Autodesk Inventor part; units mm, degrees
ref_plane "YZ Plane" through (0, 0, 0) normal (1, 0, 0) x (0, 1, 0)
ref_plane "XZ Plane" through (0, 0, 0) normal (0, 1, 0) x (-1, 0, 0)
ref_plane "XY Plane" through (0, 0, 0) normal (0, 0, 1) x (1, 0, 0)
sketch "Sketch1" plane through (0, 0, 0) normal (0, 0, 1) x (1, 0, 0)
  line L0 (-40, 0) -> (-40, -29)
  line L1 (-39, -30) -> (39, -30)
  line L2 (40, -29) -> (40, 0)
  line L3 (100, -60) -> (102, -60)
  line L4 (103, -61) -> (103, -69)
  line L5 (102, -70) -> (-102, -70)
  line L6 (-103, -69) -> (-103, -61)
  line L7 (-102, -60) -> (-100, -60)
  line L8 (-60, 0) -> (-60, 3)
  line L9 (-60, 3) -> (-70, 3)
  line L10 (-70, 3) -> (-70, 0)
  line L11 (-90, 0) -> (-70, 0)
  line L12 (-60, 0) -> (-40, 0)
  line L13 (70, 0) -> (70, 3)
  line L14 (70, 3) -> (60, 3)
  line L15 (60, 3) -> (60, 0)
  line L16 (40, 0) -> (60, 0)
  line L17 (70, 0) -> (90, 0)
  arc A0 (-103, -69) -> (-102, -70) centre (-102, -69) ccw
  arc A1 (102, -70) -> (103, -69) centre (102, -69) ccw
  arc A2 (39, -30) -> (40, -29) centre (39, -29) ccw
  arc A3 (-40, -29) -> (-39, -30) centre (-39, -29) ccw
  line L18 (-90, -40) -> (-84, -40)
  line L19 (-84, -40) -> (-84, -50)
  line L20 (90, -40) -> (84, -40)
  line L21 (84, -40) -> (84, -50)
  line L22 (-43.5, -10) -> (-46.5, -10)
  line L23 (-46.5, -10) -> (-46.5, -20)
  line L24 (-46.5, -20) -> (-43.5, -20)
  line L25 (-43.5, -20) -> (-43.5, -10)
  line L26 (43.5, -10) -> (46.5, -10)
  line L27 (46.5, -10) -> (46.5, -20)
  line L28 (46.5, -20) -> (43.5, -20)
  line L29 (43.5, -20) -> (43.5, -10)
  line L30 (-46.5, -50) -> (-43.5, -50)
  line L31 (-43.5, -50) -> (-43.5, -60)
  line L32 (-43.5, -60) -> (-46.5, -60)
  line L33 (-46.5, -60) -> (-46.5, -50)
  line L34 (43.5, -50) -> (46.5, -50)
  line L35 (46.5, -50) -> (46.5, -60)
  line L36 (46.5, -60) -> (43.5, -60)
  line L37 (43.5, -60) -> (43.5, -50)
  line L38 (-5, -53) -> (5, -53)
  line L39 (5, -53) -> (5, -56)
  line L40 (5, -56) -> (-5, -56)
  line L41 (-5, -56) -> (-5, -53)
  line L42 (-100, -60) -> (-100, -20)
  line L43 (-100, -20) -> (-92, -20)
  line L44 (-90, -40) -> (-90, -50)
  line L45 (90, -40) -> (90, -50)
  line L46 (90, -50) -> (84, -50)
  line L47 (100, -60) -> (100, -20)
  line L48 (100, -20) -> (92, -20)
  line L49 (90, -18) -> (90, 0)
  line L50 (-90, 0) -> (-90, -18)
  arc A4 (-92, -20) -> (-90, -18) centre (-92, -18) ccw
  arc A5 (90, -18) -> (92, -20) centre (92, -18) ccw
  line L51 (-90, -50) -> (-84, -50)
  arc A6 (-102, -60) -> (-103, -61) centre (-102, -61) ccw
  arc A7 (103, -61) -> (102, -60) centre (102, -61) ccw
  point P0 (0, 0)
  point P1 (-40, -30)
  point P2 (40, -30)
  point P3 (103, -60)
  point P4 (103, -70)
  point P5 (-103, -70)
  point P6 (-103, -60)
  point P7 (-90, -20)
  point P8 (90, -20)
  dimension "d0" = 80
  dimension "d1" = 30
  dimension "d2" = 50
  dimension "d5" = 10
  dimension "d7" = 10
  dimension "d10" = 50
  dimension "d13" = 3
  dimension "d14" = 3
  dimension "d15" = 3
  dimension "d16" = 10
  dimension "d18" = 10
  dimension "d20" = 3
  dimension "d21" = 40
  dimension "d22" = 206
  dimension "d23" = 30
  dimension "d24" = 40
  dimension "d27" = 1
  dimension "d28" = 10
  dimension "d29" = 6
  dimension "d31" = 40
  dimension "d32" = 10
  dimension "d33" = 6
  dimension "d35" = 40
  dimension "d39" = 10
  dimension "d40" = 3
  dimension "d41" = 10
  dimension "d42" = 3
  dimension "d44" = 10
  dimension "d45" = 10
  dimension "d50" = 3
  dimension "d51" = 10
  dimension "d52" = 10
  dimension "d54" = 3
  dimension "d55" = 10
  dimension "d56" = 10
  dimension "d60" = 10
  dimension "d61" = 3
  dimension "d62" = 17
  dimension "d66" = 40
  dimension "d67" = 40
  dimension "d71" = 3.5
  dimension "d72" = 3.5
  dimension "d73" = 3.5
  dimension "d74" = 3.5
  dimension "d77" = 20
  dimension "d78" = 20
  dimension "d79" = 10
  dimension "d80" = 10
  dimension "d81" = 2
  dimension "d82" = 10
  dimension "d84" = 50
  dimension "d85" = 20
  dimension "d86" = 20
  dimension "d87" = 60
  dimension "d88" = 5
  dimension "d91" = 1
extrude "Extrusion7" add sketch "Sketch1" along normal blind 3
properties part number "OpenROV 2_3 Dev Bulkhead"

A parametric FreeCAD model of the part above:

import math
import FreeCAD as App
import Part
import Sketcher
from FreeCAD import Vector

doc = App.newDocument("Part")
body = doc.addObject("PartDesign::Body", "Body")

# Sketch on XY plane
sketch1 = body.newObject("Sketcher::SketchObject", "Sketch")
sketch1.AttachmentSupport = (doc.getObject("XY_Plane"), [""])
sketch1.MapMode = "FlatFace"
sketch1.addGeometry(Part.LineSegment(Vector(-40, -29, 0), Vector(-40, 0, 0)), False)
sketch1.addGeometry(Part.LineSegment(Vector(-40, 0, 0), Vector(-60, 0, 0)), False)
sketch1.addGeometry(Part.LineSegment(Vector(-60, 0, 0), Vector(-60, 3, 0)), False)
sketch1.addGeometry(Part.LineSegment(Vector(-60, 3, 0), Vector(-70, 3, 0)), False)
sketch1.addGeometry(Part.LineSegment(Vector(-70, 3, 0), Vector(-70, 0, 0)), False)
sketch1.addGeometry(Part.LineSegment(Vector(-70, 0, 0), Vector(-90, 0, 0)), False)
sketch1.addGeometry(Part.LineSegment(Vector(-90, 0, 0), Vector(-90, -18, 0)), False)
sketch1.addGeometry(Part.ArcOfCircle(Part.Circle(Vector(-92, -18, 0), Vector(0, 0, 1), 2), math.radians(-90), math.radians(0)), False)
sketch1.addGeometry(Part.LineSegment(Vector(-92, -20, 0), Vector(-100, -20, 0)), False)
sketch1.addGeometry(Part.LineSegment(Vector(-100, -20, 0), Vector(-100, -60, 0)), False)
sketch1.addGeometry(Part.LineSegment(Vector(-100, -60, 0), Vector(-102, -60, 0)), False)
sketch1.addGeometry(Part.ArcOfCircle(Part.Circle(Vector(-102, -61, 0), Vector(0, 0, 1), 1), math.radians(90), math.radians(180)), False)
sketch1.addGeometry(Part.LineSegment(Vector(-103, -61, 0), Vector(-103, -69, 0)), False)
sketch1.addGeometry(Part.ArcOfCircle(Part.Circle(Vector(-102, -69, 0), Vector(0, 0, 1), 1), math.radians(180), math.radians(270)), False)
sketch1.addGeometry(Part.LineSegment(Vector(-102, -70, 0), Vector(102, -70, 0)), False)
sketch1.addGeometry(Part.ArcOfCircle(Part.Circle(Vector(102, -69, 0), Vector(0, 0, 1), 1), math.radians(-90), math.radians(0)), False)
sketch1.addGeometry(Part.LineSegment(Vector(103, -69, 0), Vector(103, -61, 0)), False)
sketch1.addGeometry(Part.ArcOfCircle(Part.Circle(Vector(102, -61, 0), Vector(0, 0, 1), 1), math.radians(0), math.radians(90)), False)
sketch1.addGeometry(Part.LineSegment(Vector(102, -60, 0), Vector(100, -60, 0)), False)
sketch1.addGeometry(Part.LineSegment(Vector(100, -60, 0), Vector(100, -20, 0)), False)
sketch1.addGeometry(Part.LineSegment(Vector(100, -20, 0), Vector(92, -20, 0)), False)
sketch1.addGeometry(Part.ArcOfCircle(Part.Circle(Vector(92, -18, 0), Vector(0, 0, 1), 2), math.radians(180), math.radians(270)), False)
sketch1.addGeometry(Part.LineSegment(Vector(90, -18, 0), Vector(90, 0, 0)), False)
sketch1.addGeometry(Part.LineSegment(Vector(90, 0, 0), Vector(70, 0, 0)), False)
sketch1.addGeometry(Part.LineSegment(Vector(70, 0, 0), Vector(70, 3, 0)), False)
sketch1.addGeometry(Part.LineSegment(Vector(70, 3, 0), Vector(60, 3, 0)), False)
sketch1.addGeometry(Part.LineSegment(Vector(60, 3, 0), Vector(60, 0, 0)), False)
sketch1.addGeometry(Part.LineSegment(Vector(60, 0, 0), Vector(40, 0, 0)), False)
sketch1.addGeometry(Part.LineSegment(Vector(40, 0, 0), Vector(40, -29, 0)), False)
sketch1.addGeometry(Part.ArcOfCircle(Part.Circle(Vector(39, -29, 0), Vector(0, 0, 1), 1), math.radians(-90), math.radians(0)), False)
sketch1.addGeometry(Part.LineSegment(Vector(39, -30, 0), Vector(-39, -30, 0)), False)
sketch1.addGeometry(Part.ArcOfCircle(Part.Circle(Vector(-39, -29, 0), Vector(0, 0, 1), 1), math.radians(180), math.radians(270)), False)
sketch1.addGeometry(Part.LineSegment(Vector(-46.5, -60, 0), Vector(-46.5, -50, 0)), False)
sketch1.addGeometry(Part.LineSegment(Vector(-46.5, -50, 0), Vector(-43.5, -50, 0)), False)
sketch1.addGeometry(Part.LineSegment(Vector(-43.5, -50, 0), Vector(-43.5, -60, 0)), False)
sketch1.addGeometry(Part.LineSegment(Vector(-43.5, -60, 0), Vector(-46.5, -60, 0)), False)
sketch1.addGeometry(Part.LineSegment(Vector(-5, -56, 0), Vector(-5, -53, 0)), False)
sketch1.addGeometry(Part.LineSegment(Vector(-5, -53, 0), Vector(5, -53, 0)), False)
sketch1.addGeometry(Part.LineSegment(Vector(5, -53, 0), Vector(5, -56, 0)), False)
sketch1.addGeometry(Part.LineSegment(Vector(5, -56, 0), Vector(-5, -56, 0)), False)
sketch1.addGeometry(Part.LineSegment(Vector(-90, -50, 0), Vector(-90, -40, 0)), False)
sketch1.addGeometry(Part.LineSegment(Vector(-90, -40, 0), Vector(-84, -40, 0)), False)
sketch1.addGeometry(Part.LineSegment(Vector(-84, -40, 0), Vector(-84, -50, 0)), False)
sketch1.addGeometry(Part.LineSegment(Vector(-84, -50, 0), Vector(-90, -50, 0)), False)
sketch1.addGeometry(Part.LineSegment(Vector(43.5, -60, 0), Vector(43.5, -50, 0)), False)
sketch1.addGeometry(Part.LineSegment(Vector(43.5, -50, 0), Vector(46.5, -50, 0)), False)
sketch1.addGeometry(Part.LineSegment(Vector(46.5, -50, 0), Vector(46.5, -60, 0)), False)
sketch1.addGeometry(Part.LineSegment(Vector(46.5, -60, 0), Vector(43.5, -60, 0)), False)
sketch1.addGeometry(Part.LineSegment(Vector(84, -40, 0), Vector(90, -40, 0)), False)
sketch1.addGeometry(Part.LineSegment(Vector(90, -40, 0), Vector(90, -50, 0)), False)
sketch1.addGeometry(Part.LineSegment(Vector(90, -50, 0), Vector(84, -50, 0)), False)
sketch1.addGeometry(Part.LineSegment(Vector(84, -50, 0), Vector(84, -40, 0)), False)
sketch1.addGeometry(Part.LineSegment(Vector(-46.5, -10, 0), Vector(-43.5, -10, 0)), False)
sketch1.addGeometry(Part.LineSegment(Vector(-43.5, -10, 0), Vector(-43.5, -20, 0)), False)
sketch1.addGeometry(Part.LineSegment(Vector(-43.5, -20, 0), Vector(-46.5, -20, 0)), False)
sketch1.addGeometry(Part.LineSegment(Vector(-46.5, -20, 0), Vector(-46.5, -10, 0)), False)
sketch1.addGeometry(Part.LineSegment(Vector(43.5, -20, 0), Vector(43.5, -10, 0)), False)
sketch1.addGeometry(Part.LineSegment(Vector(43.5, -10, 0), Vector(46.5, -10, 0)), False)
sketch1.addGeometry(Part.LineSegment(Vector(46.5, -10, 0), Vector(46.5, -20, 0)), False)
sketch1.addGeometry(Part.LineSegment(Vector(46.5, -20, 0), Vector(43.5, -20, 0)), False)
sketch1.addConstraint(Sketcher.Constraint("Coincident", 0, 2, 1, 1))
sketch1.addConstraint(Sketcher.Constraint("Coincident", 1, 2, 2, 1))
sketch1.addConstraint(Sketcher.Constraint("Coincident", 2, 2, 3, 1))
sketch1.addConstraint(Sketcher.Constraint("Coincident", 3, 2, 4, 1))
sketch1.addConstraint(Sketcher.Constraint("Coincident", 4, 2, 5, 1))
sketch1.addConstraint(Sketcher.Constraint("Coincident", 5, 2, 6, 1))
sketch1.addConstraint(Sketcher.Constraint("Tangent", 6, 2, 7, 2))
sketch1.addConstraint(Sketcher.Constraint("Tangent", 7, 1, 8, 1))
sketch1.addConstraint(Sketcher.Constraint("Coincident", 8, 2, 9, 1))
sketch1.addConstraint(Sketcher.Constraint("Coincident", 9, 2, 10, 1))
sketch1.addConstraint(Sketcher.Constraint("Tangent", 10, 2, 11, 1))
sketch1.addConstraint(Sketcher.Constraint("Tangent", 11, 2, 12, 1))
sketch1.addConstraint(Sketcher.Constraint("Tangent", 12, 2, 13, 1))
sketch1.addConstraint(Sketcher.Constraint("Tangent", 13, 2, 14, 1))
sketch1.addConstraint(Sketcher.Constraint("Tangent", 14, 2, 15, 1))
sketch1.addConstraint(Sketcher.Constraint("Tangent", 15, 2, 16, 1))
sketch1.addConstraint(Sketcher.Constraint("Tangent", 16, 2, 17, 1))
sketch1.addConstraint(Sketcher.Constraint("Tangent", 17, 2, 18, 1))
sketch1.addConstraint(Sketcher.Constraint("Coincident", 18, 2, 19, 1))
sketch1.addConstraint(Sketcher.Constraint("Coincident", 19, 2, 20, 1))
sketch1.addConstraint(Sketcher.Constraint("Tangent", 20, 2, 21, 2))
sketch1.addConstraint(Sketcher.Constraint("Tangent", 21, 1, 22, 1))
sketch1.addConstraint(Sketcher.Constraint("Coincident", 22, 2, 23, 1))
sketch1.addConstraint(Sketcher.Constraint("Coincident", 23, 2, 24, 1))
sketch1.addConstraint(Sketcher.Constraint("Coincident", 24, 2, 25, 1))
sketch1.addConstraint(Sketcher.Constraint("Coincident", 25, 2, 26, 1))
sketch1.addConstraint(Sketcher.Constraint("Coincident", 26, 2, 27, 1))
sketch1.addConstraint(Sketcher.Constraint("Coincident", 27, 2, 28, 1))
sketch1.addConstraint(Sketcher.Constraint("Tangent", 28, 2, 29, 2))
sketch1.addConstraint(Sketcher.Constraint("Tangent", 29, 1, 30, 1))
sketch1.addConstraint(Sketcher.Constraint("Tangent", 30, 2, 31, 2))
sketch1.addConstraint(Sketcher.Constraint("Tangent", 31, 1, 0, 1))
sketch1.addConstraint(Sketcher.Constraint("Coincident", 32, 2, 33, 1))
sketch1.addConstraint(Sketcher.Constraint("Coincident", 33, 2, 34, 1))
sketch1.addConstraint(Sketcher.Constraint("Coincident", 34, 2, 35, 1))
sketch1.addConstraint(Sketcher.Constraint("Coincident", 35, 2, 32, 1))
sketch1.addConstraint(Sketcher.Constraint("Coincident", 36, 2, 37, 1))
sketch1.addConstraint(Sketcher.Constraint("Coincident", 37, 2, 38, 1))
sketch1.addConstraint(Sketcher.Constraint("Coincident", 38, 2, 39, 1))
sketch1.addConstraint(Sketcher.Constraint("Coincident", 39, 2, 36, 1))
sketch1.addConstraint(Sketcher.Constraint("Coincident", 40, 2, 41, 1))
sketch1.addConstraint(Sketcher.Constraint("Coincident", 41, 2, 42, 1))
sketch1.addConstraint(Sketcher.Constraint("Coincident", 42, 2, 43, 1))
sketch1.addConstraint(Sketcher.Constraint("Coincident", 43, 2, 40, 1))
sketch1.addConstraint(Sketcher.Constraint("Coincident", 44, 2, 45, 1))
sketch1.addConstraint(Sketcher.Constraint("Coincident", 45, 2, 46, 1))
sketch1.addConstraint(Sketcher.Constraint("Coincident", 46, 2, 47, 1))
sketch1.addConstraint(Sketcher.Constraint("Coincident", 47, 2, 44, 1))
sketch1.addConstraint(Sketcher.Constraint("Coincident", 48, 2, 49, 1))
sketch1.addConstraint(Sketcher.Constraint("Coincident", 49, 2, 50, 1))
sketch1.addConstraint(Sketcher.Constraint("Coincident", 50, 2, 51, 1))
sketch1.addConstraint(Sketcher.Constraint("Coincident", 51, 2, 48, 1))
sketch1.addConstraint(Sketcher.Constraint("Coincident", 52, 2, 53, 1))
sketch1.addConstraint(Sketcher.Constraint("Coincident", 53, 2, 54, 1))
sketch1.addConstraint(Sketcher.Constraint("Coincident", 54, 2, 55, 1))
sketch1.addConstraint(Sketcher.Constraint("Coincident", 55, 2, 52, 1))
sketch1.addConstraint(Sketcher.Constraint("Coincident", 56, 2, 57, 1))
sketch1.addConstraint(Sketcher.Constraint("Coincident", 57, 2, 58, 1))
sketch1.addConstraint(Sketcher.Constraint("Coincident", 58, 2, 59, 1))
sketch1.addConstraint(Sketcher.Constraint("Coincident", 59, 2, 56, 1))
sketch1.addConstraint(Sketcher.Constraint("Vertical", 0))
sketch1.addConstraint(Sketcher.Constraint("Horizontal", 1))
sketch1.addConstraint(Sketcher.Constraint("Vertical", 2))
sketch1.addConstraint(Sketcher.Constraint("Horizontal", 3))
sketch1.addConstraint(Sketcher.Constraint("Vertical", 4))
sketch1.addConstraint(Sketcher.Constraint("Horizontal", 5))
sketch1.addConstraint(Sketcher.Constraint("Vertical", 6))
sketch1.addConstraint(Sketcher.Constraint("Horizontal", 8))
sketch1.addConstraint(Sketcher.Constraint("Vertical", 9))
sketch1.addConstraint(Sketcher.Constraint("Horizontal", 10))
sketch1.addConstraint(Sketcher.Constraint("Vertical", 12))
sketch1.addConstraint(Sketcher.Constraint("Horizontal", 14))
sketch1.addConstraint(Sketcher.Constraint("Vertical", 16))
sketch1.addConstraint(Sketcher.Constraint("Horizontal", 18))
sketch1.addConstraint(Sketcher.Constraint("Vertical", 19))
sketch1.addConstraint(Sketcher.Constraint("Horizontal", 20))
sketch1.addConstraint(Sketcher.Constraint("Vertical", 22))
sketch1.addConstraint(Sketcher.Constraint("Horizontal", 23))
sketch1.addConstraint(Sketcher.Constraint("Vertical", 24))
sketch1.addConstraint(Sketcher.Constraint("Horizontal", 25))
sketch1.addConstraint(Sketcher.Constraint("Vertical", 26))
sketch1.addConstraint(Sketcher.Constraint("Horizontal", 27))
sketch1.addConstraint(Sketcher.Constraint("Vertical", 28))
sketch1.addConstraint(Sketcher.Constraint("Horizontal", 30))
sketch1.addConstraint(Sketcher.Constraint("Vertical", 32))
sketch1.addConstraint(Sketcher.Constraint("Horizontal", 33))
sketch1.addConstraint(Sketcher.Constraint("Vertical", 34))
sketch1.addConstraint(Sketcher.Constraint("Horizontal", 35))
sketch1.addConstraint(Sketcher.Constraint("Vertical", 36))
sketch1.addConstraint(Sketcher.Constraint("Horizontal", 37))
sketch1.addConstraint(Sketcher.Constraint("Vertical", 38))
sketch1.addConstraint(Sketcher.Constraint("Horizontal", 39))
sketch1.addConstraint(Sketcher.Constraint("Vertical", 40))
sketch1.addConstraint(Sketcher.Constraint("Horizontal", 41))
sketch1.addConstraint(Sketcher.Constraint("Vertical", 42))
sketch1.addConstraint(Sketcher.Constraint("Horizontal", 43))
sketch1.addConstraint(Sketcher.Constraint("Vertical", 44))
sketch1.addConstraint(Sketcher.Constraint("Horizontal", 45))
sketch1.addConstraint(Sketcher.Constraint("Vertical", 46))
sketch1.addConstraint(Sketcher.Constraint("Horizontal", 47))
sketch1.addConstraint(Sketcher.Constraint("Horizontal", 48))
sketch1.addConstraint(Sketcher.Constraint("Vertical", 49))
sketch1.addConstraint(Sketcher.Constraint("Horizontal", 50))
sketch1.addConstraint(Sketcher.Constraint("Vertical", 51))
sketch1.addConstraint(Sketcher.Constraint("Horizontal", 52))
sketch1.addConstraint(Sketcher.Constraint("Vertical", 53))
sketch1.addConstraint(Sketcher.Constraint("Horizontal", 54))
sketch1.addConstraint(Sketcher.Constraint("Vertical", 55))
sketch1.addConstraint(Sketcher.Constraint("Vertical", 56))
sketch1.addConstraint(Sketcher.Constraint("Horizontal", 57))
sketch1.addConstraint(Sketcher.Constraint("Vertical", 58))
sketch1.addConstraint(Sketcher.Constraint("Horizontal", 59))
sketch1.addConstraint(Sketcher.Constraint("Equal", 11, 13))
sketch1.addConstraint(Sketcher.Constraint("Equal", 13, 15))
sketch1.addConstraint(Sketcher.Constraint("Equal", 15, 17))
sketch1.addConstraint(Sketcher.Constraint("Equal", 7, 21))
sketch1.addConstraint(Sketcher.Constraint("Equal", 17, 29))
sketch1.addConstraint(Sketcher.Constraint("Equal", 29, 31))
sketch1.addConstraint(Sketcher.Constraint("Symmetric", 5, 2, 22, 2, -1, 1))
sketch1.addConstraint(Sketcher.Constraint("Symmetric", 1, 2, 26, 2, -1, 1))
sketch1.addConstraint(Sketcher.Constraint("Symmetric", 11, 3, 17, 3, -2))
sketch1.addConstraint(Sketcher.Constraint("Symmetric", 8, 2, 19, 2, -2))
sketch1.addConstraint(Sketcher.Constraint("Symmetric", 4, 2, 23, 2, -2))
sketch1.addConstraint(Sketcher.Constraint("Symmetric", 0, 2, 27, 2, -2))
sketch1.addConstraint(Sketcher.Constraint("Symmetric", 33, 2, 44, 2, -2))
sketch1.addConstraint(Sketcher.Constraint("Symmetric", 35, 2, 46, 2, -2))
sketch1.addConstraint(Sketcher.Constraint("Symmetric", 40, 2, 48, 2, -2))
sketch1.addConstraint(Sketcher.Constraint("Symmetric", 42, 2, 50, 2, -2))
sketch1.addConstraint(Sketcher.Constraint("Symmetric", 52, 2, 56, 2, -2))
sketch1.addConstraint(Sketcher.Constraint("Symmetric", 54, 2, 58, 2, -2))
sketch1.addConstraint(Sketcher.Constraint("Horizontal", 3, 2, 24, 2))
sketch1.addConstraint(Sketcher.Constraint("Horizontal", 18, 2, 34, 2))
sketch1.addConstraint(Sketcher.Constraint("Horizontal", 33, 2, 42, 2))
sketch1.addConstraint(Sketcher.Constraint("Horizontal", 20, 2, 53, 2))
sketch1.addConstraint(Sketcher.Constraint("Vertical", 6, 2, 40, 2))
sketch1.addConstraint(Sketcher.Constraint("Vertical", 34, 2, 52, 2))
sketch1.addConstraint(Sketcher.Constraint("Vertical", 35, 2, 54, 2))
sketch1.addConstraint(Sketcher.Constraint("Equal", 1, 5))
sketch1.addConstraint(Sketcher.Constraint("Equal", 25, 37))
sketch1.addConstraint(Sketcher.Constraint("Equal", 59, 2))
sketch1.addConstraint(Sketcher.Constraint("Equal", 20, 12))
sketch1.addConstraint(Sketcher.Constraint("Equal", 39, 32))
sketch1.addConstraint(Sketcher.Constraint("Equal", 26, 36))
sketch1.addConstraint(Sketcher.Constraint("Equal", 34, 40))
sketch1.addConstraint(Sketcher.Constraint("Equal", 51, 53))
sketch1.addConstraint(Sketcher.Constraint("Radius", 7, 2.0))
sketch1.addConstraint(Sketcher.Constraint("Radius", 11, 1.0))
sketch1.addConstraint(Sketcher.Constraint("DistanceX", 1, 2, 1, 1, 20.0))
sketch1.addConstraint(Sketcher.Constraint("DistanceX", 3, 2, 3, 1, 10.0))
sketch1.addConstraint(Sketcher.Constraint("DistanceX", 10, 2, 10, 1, 2.0))
sketch1.addConstraint(Sketcher.Constraint("DistanceX", 33, 1, 33, 2, 3.0))
sketch1.addConstraint(Sketcher.Constraint("DistanceX", 41, 1, 41, 2, 6.0))
sketch1.addConstraint(Sketcher.Constraint("DistanceY", 9, 2, 9, 1, 40.0))
sketch1.addConstraint(Sketcher.Constraint("DistanceX", 0, 2, -1, 1, 40.0))
sketch1.addConstraint(Sketcher.Constraint("DistanceY", 7, 1, -1, 1, 20.0))
sketch1.addConstraint(Sketcher.Constraint("DistanceY", 29, 1, -1, 1, 30.0))
sketch1.addConstraint(Sketcher.Constraint("DistanceX", 36, 2, -1, 1, 5.0))
sketch1.addConstraint(Sketcher.Constraint("DistanceX", 8, 2, 8, 1, 8.0))
sketch1.addConstraint(Sketcher.Constraint("DistanceY", 36, 2, -1, 1, 53.0))
sketch1.addConstraint(Sketcher.Constraint("DistanceX", 32, 2, -1, 1, 46.5))
pad1 = body.newObject("PartDesign::Pad", "Pad")
pad1.Profile = sketch1
pad1.Length = 3

doc.recompute()
